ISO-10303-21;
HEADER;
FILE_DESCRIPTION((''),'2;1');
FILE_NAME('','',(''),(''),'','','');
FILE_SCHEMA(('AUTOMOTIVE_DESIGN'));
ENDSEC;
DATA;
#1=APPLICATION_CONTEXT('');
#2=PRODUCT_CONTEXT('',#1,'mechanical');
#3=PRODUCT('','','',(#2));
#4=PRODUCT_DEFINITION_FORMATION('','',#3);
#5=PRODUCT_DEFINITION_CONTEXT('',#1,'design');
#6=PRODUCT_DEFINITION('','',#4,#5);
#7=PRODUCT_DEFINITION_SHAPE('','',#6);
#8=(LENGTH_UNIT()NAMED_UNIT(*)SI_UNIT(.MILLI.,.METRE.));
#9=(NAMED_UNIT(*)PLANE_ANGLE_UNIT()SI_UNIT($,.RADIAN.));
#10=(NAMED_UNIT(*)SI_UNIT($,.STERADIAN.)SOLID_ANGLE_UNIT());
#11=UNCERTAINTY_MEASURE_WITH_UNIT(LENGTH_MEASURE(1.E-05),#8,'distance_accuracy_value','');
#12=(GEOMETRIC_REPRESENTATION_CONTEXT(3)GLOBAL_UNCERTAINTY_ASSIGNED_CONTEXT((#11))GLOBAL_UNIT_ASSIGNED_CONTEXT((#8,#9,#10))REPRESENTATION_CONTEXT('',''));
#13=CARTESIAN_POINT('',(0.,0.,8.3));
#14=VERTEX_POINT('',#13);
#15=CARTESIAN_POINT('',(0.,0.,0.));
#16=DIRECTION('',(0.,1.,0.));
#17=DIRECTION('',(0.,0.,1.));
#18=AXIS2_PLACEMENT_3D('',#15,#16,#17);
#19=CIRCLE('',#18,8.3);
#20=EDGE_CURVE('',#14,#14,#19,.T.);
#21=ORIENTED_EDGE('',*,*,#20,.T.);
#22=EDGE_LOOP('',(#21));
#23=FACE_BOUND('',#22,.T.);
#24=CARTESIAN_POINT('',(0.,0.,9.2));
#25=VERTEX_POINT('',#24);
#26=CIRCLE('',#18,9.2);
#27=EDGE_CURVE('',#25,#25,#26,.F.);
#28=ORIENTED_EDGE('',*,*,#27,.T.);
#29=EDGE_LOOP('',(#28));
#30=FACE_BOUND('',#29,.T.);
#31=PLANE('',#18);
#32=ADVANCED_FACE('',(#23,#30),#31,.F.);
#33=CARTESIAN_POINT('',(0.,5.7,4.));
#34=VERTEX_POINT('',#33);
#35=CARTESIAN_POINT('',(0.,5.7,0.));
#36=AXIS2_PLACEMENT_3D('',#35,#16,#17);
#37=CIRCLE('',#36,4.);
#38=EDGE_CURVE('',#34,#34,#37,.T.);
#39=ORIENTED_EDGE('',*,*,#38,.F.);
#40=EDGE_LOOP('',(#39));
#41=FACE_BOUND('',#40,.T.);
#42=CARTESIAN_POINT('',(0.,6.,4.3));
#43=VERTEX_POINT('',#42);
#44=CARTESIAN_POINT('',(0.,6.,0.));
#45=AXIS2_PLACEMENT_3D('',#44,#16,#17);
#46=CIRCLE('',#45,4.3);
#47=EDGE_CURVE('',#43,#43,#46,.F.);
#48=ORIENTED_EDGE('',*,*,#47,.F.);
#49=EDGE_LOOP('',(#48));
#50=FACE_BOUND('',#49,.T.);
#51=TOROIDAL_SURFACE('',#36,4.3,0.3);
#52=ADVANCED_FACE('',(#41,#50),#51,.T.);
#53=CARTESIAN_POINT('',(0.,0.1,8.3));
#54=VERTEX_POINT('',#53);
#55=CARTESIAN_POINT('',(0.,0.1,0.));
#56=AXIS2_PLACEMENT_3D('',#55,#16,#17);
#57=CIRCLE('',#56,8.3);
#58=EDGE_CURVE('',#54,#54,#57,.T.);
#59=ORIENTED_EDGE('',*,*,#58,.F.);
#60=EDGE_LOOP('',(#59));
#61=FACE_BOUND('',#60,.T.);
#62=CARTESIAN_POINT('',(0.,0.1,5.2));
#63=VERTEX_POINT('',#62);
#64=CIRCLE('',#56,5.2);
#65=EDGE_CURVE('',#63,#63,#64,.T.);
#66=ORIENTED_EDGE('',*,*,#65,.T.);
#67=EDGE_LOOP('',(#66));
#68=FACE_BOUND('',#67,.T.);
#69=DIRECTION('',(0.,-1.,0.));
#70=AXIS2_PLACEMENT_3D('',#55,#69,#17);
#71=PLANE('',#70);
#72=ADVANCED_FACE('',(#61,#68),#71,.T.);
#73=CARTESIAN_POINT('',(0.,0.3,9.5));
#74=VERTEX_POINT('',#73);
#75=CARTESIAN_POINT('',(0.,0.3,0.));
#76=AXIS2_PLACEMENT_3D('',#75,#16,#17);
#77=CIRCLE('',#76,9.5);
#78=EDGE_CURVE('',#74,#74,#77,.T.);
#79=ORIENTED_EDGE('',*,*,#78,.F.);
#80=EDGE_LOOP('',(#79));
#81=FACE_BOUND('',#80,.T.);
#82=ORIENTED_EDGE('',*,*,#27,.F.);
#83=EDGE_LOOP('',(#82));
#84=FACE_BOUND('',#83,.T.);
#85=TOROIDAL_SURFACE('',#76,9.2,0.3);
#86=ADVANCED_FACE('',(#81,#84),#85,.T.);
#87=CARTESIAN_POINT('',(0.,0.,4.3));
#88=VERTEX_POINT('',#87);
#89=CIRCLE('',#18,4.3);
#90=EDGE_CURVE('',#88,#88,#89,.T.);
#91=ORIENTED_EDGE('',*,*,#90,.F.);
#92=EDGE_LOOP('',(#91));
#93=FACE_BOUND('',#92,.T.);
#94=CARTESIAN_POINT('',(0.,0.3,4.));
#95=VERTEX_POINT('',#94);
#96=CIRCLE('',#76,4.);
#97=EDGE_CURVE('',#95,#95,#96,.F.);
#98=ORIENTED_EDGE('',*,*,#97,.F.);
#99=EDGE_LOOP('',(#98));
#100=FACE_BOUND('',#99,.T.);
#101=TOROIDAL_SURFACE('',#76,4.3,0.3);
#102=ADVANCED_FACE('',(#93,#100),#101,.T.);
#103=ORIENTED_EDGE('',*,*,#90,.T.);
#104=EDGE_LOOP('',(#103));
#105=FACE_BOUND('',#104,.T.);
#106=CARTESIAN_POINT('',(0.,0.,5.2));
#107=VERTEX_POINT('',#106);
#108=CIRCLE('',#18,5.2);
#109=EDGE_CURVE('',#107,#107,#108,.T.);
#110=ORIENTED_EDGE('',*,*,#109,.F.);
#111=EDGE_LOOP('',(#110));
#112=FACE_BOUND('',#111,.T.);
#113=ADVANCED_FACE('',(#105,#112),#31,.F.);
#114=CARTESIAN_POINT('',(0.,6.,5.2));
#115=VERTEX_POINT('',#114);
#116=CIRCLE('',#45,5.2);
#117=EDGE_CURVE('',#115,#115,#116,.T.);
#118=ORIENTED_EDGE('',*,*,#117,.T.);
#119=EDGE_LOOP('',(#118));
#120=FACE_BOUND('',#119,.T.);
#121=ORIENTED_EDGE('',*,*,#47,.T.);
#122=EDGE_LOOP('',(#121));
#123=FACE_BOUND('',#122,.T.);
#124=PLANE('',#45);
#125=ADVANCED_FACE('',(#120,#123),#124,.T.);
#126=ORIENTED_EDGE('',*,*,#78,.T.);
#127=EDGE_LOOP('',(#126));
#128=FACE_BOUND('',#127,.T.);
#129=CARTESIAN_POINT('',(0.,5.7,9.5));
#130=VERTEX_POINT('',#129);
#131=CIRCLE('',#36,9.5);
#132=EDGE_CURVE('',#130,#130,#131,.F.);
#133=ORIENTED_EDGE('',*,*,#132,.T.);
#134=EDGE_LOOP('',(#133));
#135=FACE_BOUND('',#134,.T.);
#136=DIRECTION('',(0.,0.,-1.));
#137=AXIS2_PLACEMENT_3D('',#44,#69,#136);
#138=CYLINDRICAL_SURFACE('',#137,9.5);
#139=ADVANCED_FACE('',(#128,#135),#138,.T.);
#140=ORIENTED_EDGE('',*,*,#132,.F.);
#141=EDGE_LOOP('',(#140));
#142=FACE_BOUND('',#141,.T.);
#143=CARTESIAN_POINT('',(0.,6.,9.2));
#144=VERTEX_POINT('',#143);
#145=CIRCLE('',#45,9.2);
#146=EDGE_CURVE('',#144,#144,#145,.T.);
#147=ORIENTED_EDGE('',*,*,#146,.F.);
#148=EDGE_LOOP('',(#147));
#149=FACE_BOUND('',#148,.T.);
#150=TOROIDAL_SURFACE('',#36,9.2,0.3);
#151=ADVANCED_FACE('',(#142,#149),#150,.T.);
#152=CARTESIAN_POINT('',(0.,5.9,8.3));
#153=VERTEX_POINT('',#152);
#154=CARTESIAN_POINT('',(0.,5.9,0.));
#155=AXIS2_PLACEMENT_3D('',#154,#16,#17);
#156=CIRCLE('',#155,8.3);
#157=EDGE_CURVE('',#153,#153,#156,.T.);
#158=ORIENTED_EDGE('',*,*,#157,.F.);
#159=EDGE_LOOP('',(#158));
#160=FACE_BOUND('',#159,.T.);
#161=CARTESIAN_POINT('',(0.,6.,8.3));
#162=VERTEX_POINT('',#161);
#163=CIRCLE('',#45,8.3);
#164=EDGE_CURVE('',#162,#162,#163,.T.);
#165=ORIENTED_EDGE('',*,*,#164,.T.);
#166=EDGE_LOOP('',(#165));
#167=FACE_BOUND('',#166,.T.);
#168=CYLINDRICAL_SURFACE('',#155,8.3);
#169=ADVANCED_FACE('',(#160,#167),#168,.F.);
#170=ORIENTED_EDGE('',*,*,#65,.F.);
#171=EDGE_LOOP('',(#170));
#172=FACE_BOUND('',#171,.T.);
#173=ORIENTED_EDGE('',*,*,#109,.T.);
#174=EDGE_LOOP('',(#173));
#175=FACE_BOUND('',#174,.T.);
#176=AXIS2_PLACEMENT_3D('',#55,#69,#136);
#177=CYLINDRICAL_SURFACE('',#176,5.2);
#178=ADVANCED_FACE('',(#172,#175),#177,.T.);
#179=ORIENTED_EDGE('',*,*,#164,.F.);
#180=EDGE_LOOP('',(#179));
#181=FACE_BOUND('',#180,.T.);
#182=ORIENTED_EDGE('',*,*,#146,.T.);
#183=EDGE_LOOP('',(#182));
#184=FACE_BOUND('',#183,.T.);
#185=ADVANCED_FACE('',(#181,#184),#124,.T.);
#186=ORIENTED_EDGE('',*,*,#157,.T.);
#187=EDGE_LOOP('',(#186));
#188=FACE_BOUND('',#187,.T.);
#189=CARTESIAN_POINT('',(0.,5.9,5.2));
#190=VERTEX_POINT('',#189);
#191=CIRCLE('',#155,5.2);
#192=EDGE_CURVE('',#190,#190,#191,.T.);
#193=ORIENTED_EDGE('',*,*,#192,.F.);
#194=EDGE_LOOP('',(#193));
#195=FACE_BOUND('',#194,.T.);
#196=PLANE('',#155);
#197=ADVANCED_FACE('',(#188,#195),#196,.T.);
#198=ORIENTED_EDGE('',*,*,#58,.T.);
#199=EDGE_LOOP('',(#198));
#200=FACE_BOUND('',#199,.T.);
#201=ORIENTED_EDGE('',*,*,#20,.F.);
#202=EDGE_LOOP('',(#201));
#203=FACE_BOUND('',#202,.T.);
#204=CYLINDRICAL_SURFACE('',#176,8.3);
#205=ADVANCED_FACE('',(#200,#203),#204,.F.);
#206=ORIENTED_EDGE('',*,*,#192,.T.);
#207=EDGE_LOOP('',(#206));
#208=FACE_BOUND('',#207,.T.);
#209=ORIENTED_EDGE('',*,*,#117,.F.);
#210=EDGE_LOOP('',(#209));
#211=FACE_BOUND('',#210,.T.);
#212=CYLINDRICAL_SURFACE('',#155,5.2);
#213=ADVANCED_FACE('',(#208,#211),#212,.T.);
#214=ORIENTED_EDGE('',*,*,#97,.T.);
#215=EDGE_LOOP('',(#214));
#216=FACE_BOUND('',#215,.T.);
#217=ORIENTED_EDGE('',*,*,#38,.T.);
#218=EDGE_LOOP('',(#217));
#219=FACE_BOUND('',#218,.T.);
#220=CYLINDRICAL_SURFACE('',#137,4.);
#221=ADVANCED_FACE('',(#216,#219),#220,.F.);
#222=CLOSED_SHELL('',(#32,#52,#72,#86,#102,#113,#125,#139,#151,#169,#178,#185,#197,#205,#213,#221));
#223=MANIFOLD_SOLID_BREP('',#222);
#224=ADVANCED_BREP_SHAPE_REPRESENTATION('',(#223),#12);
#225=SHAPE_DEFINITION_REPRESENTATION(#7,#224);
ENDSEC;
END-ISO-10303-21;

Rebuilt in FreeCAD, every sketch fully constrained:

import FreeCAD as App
import Part
import Sketcher
Q = App.Units.Quantity


def edges_at(feature, points):
    """Names of the edges that pass closest to the given points."""
    edges = feature.Shape.Edges
    near = lambda p: min(range(len(edges)), key=lambda i: edges[i].distToShape(Part.Vertex(*p))[0])
    return sorted({f"Edge{near(p) + 1}" for p in points})

doc = App.newDocument("Part")
params = doc.addObject("Spreadsheet::Sheet", "Params")
for row, (alias, value) in enumerate([
    ("sketch1_diameter", "19 mm"),
    ("sketch1_diameter2", "8 mm"),
    ("pad1_length", "6 mm"),
    ("sketch2_diameter", "16.6 mm"),
    ("sketch2_diameter2", "10.4 mm"),
    ("pocket1_length", "0.1 mm"),
    ("fillet_radius", "0.3 mm"),
], start=1):
    params.set(f"A{row}", alias)
    params.set(f"B{row}", "=" + value)
    params.setAlias(f"B{row}", alias)

body = doc.addObject("PartDesign::Body", "Body")

# Sketch on XZ plane
sketch1 = body.newObject("Sketcher::SketchObject", "Sketch")
sketch1.AttachmentSupport = (doc.getObject("XZ_Plane"), [""])
sketch1.MapMode = "FlatFace"
sketch1.addGeometry(Part.Circle(App.Vector(0, 0, 0), App.Vector(0, 0, 1), 9.5), False)
sketch1.addGeometry(Part.Circle(App.Vector(0, 0, 0), App.Vector(0, 0, 1), 4), False)
sketch1.addConstraint(Sketcher.Constraint("Coincident", 0, 3, -1, 1))
sketch1.addConstraint(Sketcher.Constraint("Coincident", 1, 3, -1, 1))
sketch1.addConstraint(Sketcher.Constraint("Diameter", 0, Q("19 mm")))
sketch1.addConstraint(Sketcher.Constraint("Diameter", 1, Q("8 mm")))
sketch1.setExpression("Constraints[2]", "Params.sketch1_diameter")
sketch1.setExpression("Constraints[3]", "Params.sketch1_diameter2")
pad1 = body.newObject("PartDesign::Pad", "Pad")
pad1.Profile = sketch1
pad1.setExpression("Length", "Params.pad1_length")
pad1.Reversed = True

# Sketch on XZ plane
sketch2 = body.newObject("Sketcher::SketchObject", "Sketch001")
sketch2.AttachmentSupport = (doc.getObject("XZ_Plane"), [""])
sketch2.MapMode = "FlatFace"
sketch2.AttachmentOffset = App.Placement(App.Vector(0, 0, -6), App.Rotation())
sketch2.addGeometry(Part.Circle(App.Vector(0, 0, 0), App.Vector(0, 0, 1), 8), False)
sketch2.addGeometry(Part.Circle(App.Vector(0, 0, 0), App.Vector(0, 0, 1), 5), False)
sketch2.addConstraint(Sketcher.Constraint("Coincident", 0, 3, -1, 1))
sketch2.addConstraint(Sketcher.Constraint("Coincident", 1, 3, -1, 1))
sketch2.addConstraint(Sketcher.Constraint("Diameter", 0, Q("16.6 mm")))
sketch2.addConstraint(Sketcher.Constraint("Diameter", 1, Q("10.4 mm")))
sketch2.setExpression("Constraints[2]", "Params.sketch2_diameter")
sketch2.setExpression("Constraints[3]", "Params.sketch2_diameter2")
pocket1 = body.newObject("PartDesign::Pocket", "Pocket")
pocket1.Profile = sketch2
pocket1.setExpression("Length", "Params.pocket1_length")
pocket1.Reversed = True
doc.recompute()

datumplane = body.newObject("PartDesign::Plane", "DatumPlane")
datumplane.AttachmentSupport = (doc.getObject("XZ_Plane"), [""])
datumplane.MapMode = "FlatFace"
datumplane.AttachmentOffset = App.Placement(App.Vector(0, 0, -3), App.Rotation())
mirrored = body.newObject("PartDesign::Mirrored", "Mirrored")
mirrored.Originals = [pocket1]
mirrored.MirrorPlane = (datumplane, [""])
body.Tip = mirrored
doc.recompute()

fillet = body.newObject("PartDesign::Fillet", "Fillet")
fillet.Base = (mirrored, edges_at(mirrored, [
    (0, 0, -9.5),
    (0, 6, -9.5),
    (0, 0, -4),
    (0, 6, -4),
]))
fillet.setExpression("Radius", "Params.fillet_radius")

doc.recompute()
